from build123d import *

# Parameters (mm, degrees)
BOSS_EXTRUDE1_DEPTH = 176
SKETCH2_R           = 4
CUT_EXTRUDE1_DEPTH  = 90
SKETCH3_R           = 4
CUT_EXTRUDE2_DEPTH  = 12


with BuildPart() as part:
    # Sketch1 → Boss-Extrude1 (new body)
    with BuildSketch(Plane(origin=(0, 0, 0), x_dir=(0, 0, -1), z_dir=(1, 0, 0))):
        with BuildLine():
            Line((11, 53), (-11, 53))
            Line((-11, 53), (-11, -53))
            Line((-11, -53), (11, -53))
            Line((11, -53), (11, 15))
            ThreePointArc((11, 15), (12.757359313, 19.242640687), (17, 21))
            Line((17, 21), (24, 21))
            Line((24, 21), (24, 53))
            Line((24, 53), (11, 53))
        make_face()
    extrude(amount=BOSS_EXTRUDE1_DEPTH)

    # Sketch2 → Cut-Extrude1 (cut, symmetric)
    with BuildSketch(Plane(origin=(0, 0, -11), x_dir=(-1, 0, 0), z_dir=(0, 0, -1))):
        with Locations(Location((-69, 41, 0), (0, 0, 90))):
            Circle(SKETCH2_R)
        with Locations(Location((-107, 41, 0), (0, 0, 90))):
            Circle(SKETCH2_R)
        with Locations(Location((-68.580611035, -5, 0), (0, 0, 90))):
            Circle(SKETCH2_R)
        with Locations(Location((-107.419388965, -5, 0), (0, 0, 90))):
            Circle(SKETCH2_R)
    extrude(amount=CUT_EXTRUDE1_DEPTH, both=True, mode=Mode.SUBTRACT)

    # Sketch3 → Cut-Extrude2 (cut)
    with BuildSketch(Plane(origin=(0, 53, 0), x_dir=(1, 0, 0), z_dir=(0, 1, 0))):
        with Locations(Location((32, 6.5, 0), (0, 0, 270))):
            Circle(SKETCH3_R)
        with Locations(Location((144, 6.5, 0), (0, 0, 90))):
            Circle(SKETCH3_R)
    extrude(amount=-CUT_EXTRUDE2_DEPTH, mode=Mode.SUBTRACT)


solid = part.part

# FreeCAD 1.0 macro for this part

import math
import FreeCAD as App
import Part
import Sketcher

doc = App.newDocument("Part")
body = doc.addObject("PartDesign::Body", "Body")

sketch1 = doc.addObject("Sketcher::SketchObject", "Sketch")
body.addObject(sketch1)
sketch1.AttachmentSupport = (doc.YZ_Plane, [""])
sketch1.MapMode = "FlatFace"
sketch1.addGeometry([
    Part.LineSegment(App.Vector(53, 11, 0), App.Vector(-53, 11, 0)),
    Part.LineSegment(App.Vector(-53, 11, 0), App.Vector(-53, -11, 0)),
    Part.LineSegment(App.Vector(-53, -11, 0), App.Vector(15, -11, 0)),
    Part.ArcOfCircle(Part.Circle(App.Vector(15, -17, 0), App.Vector(0, 0, 1), 6), math.radians(0), math.radians(90)),
    Part.LineSegment(App.Vector(21, -17, 0), App.Vector(21, -24, 0)),
    Part.LineSegment(App.Vector(21, -24, 0), App.Vector(53, -24, 0)),
    Part.LineSegment(App.Vector(53, -24, 0), App.Vector(53, 11, 0)),
], False)
sketch1.addConstraint([
    Sketcher.Constraint("Coincident", 0, 2, 1, 1),
    Sketcher.Constraint("Coincident", 1, 2, 2, 1),
    Sketcher.Constraint("Tangent", 2, 2, 3, 2),
    Sketcher.Constraint("Tangent", 3, 1, 4, 1),
    Sketcher.Constraint("Coincident", 4, 2, 5, 1),
    Sketcher.Constraint("Coincident", 5, 2, 6, 1),
    Sketcher.Constraint("Coincident", 6, 2, 0, 1),
    Sketcher.Constraint("Horizontal", 0),
    Sketcher.Constraint("Vertical", 1),
    Sketcher.Constraint("Horizontal", 2),
    Sketcher.Constraint("Vertical", 4),
    Sketcher.Constraint("Horizontal", 5),
    Sketcher.Constraint("Vertical", 6),
    Sketcher.Constraint("Symmetric", 1, 2, 6, 2, -1, 1),
    Sketcher.Constraint("Radius", 3, 6.0),
    Sketcher.Constraint("DistanceX", 0, 2, 0, 1, 106.0),
    Sketcher.Constraint("DistanceX", 2, 1, 2, 2, 68.0),
    Sketcher.Constraint("DistanceY", 1, 2, 1, 1, 22.0),
    Sketcher.Constraint("DistanceY", 4, 2, 4, 1, 7.0),
])
pad1 = doc.addObject("PartDesign::Pad", "Pad")
body.addObject(pad1)
pad1.Profile = sketch1
pad1.Length = 176

sketch2 = doc.addObject("Sketcher::SketchObject", "Sketch001")
body.addObject(sketch2)
sketch2.AttachmentSupport = (doc.XY_Plane, [""])
sketch2.MapMode = "FlatFace"
sketch2.AttachmentOffset = App.Placement(App.Vector(0, 0, -11), App.Rotation())
sketch2.addGeometry([
    Part.Circle(App.Vector(69, 41, 0), App.Vector(0, 0, 1), 4),
    Part.Circle(App.Vector(107, 41, 0), App.Vector(0, 0, 1), 4),
    Part.Circle(App.Vector(68.580611, -5, 0), App.Vector(0, 0, 1), 4),
    Part.Circle(App.Vector(107.419389, -5, 0), App.Vector(0, 0, 1), 4),
], False)
sketch2.addConstraint([
    Sketcher.Constraint("Equal", 0, 1),
    Sketcher.Constraint("Equal", 1, 2),
    Sketcher.Constraint("Equal", 2, 3),
    Sketcher.Constraint("Horizontal", 0, 3, 1, 3),
    Sketcher.Constraint("Horizontal", 2, 3, 3, 3),
    Sketcher.Constraint("Diameter", 0, 8.0),
    Sketcher.Constraint("DistanceX", -1, 1, 0, 3, 69.0),
    Sketcher.Constraint("DistanceY", -1, 1, 0, 3, 41.0),
    Sketcher.Constraint("DistanceX", -1, 1, 1, 3, 107.0),
    Sketcher.Constraint("DistanceY", 2, 3, -1, 1, 5.0),
    Sketcher.Constraint("DistanceX", -1, 1, 2, 3, 68.580611),
    Sketcher.Constraint("DistanceX", -1, 1, 3, 3, 107.419389),
])
pocket1 = doc.addObject("PartDesign::Pocket", "Pocket")
body.addObject(pocket1)
pocket1.Profile = sketch2
pocket1.Length = 180
pocket1.Midplane = True

sketch3 = doc.addObject("Sketcher::SketchObject", "Sketch002")
body.addObject(sketch3)
sketch3.AttachmentSupport = (doc.XZ_Plane, [""])
sketch3.MapMode = "FlatFace"
sketch3.AttachmentOffset = App.Placement(App.Vector(0, 0, -53), App.Rotation())
sketch3.addGeometry([
    Part.Circle(App.Vector(32, -6.5, 0), App.Vector(0, 0, 1), 4),
    Part.Circle(App.Vector(144, -6.5, 0), App.Vector(0, 0, 1), 4),
], False)
sketch3.addConstraint([
    Sketcher.Constraint("Equal", 0, 1),
    Sketcher.Constraint("Horizontal", 0, 3, 1, 3),
    Sketcher.Constraint("Diameter", 0, 8.0),
    Sketcher.Constraint("DistanceX", -1, 1, 0, 3, 32.0),
    Sketcher.Constraint("DistanceX", -1, 1, 1, 3, 144.0),
    Sketcher.Constraint("DistanceY", 0, 3, -1, 1, 6.5),
])
pocket2 = doc.addObject("PartDesign::Pocket", "Pocket001")
body.addObject(pocket2)
pocket2.Profile = sketch3
pocket2.Length = 12
pocket2.Reversed = True

doc.recompute()
